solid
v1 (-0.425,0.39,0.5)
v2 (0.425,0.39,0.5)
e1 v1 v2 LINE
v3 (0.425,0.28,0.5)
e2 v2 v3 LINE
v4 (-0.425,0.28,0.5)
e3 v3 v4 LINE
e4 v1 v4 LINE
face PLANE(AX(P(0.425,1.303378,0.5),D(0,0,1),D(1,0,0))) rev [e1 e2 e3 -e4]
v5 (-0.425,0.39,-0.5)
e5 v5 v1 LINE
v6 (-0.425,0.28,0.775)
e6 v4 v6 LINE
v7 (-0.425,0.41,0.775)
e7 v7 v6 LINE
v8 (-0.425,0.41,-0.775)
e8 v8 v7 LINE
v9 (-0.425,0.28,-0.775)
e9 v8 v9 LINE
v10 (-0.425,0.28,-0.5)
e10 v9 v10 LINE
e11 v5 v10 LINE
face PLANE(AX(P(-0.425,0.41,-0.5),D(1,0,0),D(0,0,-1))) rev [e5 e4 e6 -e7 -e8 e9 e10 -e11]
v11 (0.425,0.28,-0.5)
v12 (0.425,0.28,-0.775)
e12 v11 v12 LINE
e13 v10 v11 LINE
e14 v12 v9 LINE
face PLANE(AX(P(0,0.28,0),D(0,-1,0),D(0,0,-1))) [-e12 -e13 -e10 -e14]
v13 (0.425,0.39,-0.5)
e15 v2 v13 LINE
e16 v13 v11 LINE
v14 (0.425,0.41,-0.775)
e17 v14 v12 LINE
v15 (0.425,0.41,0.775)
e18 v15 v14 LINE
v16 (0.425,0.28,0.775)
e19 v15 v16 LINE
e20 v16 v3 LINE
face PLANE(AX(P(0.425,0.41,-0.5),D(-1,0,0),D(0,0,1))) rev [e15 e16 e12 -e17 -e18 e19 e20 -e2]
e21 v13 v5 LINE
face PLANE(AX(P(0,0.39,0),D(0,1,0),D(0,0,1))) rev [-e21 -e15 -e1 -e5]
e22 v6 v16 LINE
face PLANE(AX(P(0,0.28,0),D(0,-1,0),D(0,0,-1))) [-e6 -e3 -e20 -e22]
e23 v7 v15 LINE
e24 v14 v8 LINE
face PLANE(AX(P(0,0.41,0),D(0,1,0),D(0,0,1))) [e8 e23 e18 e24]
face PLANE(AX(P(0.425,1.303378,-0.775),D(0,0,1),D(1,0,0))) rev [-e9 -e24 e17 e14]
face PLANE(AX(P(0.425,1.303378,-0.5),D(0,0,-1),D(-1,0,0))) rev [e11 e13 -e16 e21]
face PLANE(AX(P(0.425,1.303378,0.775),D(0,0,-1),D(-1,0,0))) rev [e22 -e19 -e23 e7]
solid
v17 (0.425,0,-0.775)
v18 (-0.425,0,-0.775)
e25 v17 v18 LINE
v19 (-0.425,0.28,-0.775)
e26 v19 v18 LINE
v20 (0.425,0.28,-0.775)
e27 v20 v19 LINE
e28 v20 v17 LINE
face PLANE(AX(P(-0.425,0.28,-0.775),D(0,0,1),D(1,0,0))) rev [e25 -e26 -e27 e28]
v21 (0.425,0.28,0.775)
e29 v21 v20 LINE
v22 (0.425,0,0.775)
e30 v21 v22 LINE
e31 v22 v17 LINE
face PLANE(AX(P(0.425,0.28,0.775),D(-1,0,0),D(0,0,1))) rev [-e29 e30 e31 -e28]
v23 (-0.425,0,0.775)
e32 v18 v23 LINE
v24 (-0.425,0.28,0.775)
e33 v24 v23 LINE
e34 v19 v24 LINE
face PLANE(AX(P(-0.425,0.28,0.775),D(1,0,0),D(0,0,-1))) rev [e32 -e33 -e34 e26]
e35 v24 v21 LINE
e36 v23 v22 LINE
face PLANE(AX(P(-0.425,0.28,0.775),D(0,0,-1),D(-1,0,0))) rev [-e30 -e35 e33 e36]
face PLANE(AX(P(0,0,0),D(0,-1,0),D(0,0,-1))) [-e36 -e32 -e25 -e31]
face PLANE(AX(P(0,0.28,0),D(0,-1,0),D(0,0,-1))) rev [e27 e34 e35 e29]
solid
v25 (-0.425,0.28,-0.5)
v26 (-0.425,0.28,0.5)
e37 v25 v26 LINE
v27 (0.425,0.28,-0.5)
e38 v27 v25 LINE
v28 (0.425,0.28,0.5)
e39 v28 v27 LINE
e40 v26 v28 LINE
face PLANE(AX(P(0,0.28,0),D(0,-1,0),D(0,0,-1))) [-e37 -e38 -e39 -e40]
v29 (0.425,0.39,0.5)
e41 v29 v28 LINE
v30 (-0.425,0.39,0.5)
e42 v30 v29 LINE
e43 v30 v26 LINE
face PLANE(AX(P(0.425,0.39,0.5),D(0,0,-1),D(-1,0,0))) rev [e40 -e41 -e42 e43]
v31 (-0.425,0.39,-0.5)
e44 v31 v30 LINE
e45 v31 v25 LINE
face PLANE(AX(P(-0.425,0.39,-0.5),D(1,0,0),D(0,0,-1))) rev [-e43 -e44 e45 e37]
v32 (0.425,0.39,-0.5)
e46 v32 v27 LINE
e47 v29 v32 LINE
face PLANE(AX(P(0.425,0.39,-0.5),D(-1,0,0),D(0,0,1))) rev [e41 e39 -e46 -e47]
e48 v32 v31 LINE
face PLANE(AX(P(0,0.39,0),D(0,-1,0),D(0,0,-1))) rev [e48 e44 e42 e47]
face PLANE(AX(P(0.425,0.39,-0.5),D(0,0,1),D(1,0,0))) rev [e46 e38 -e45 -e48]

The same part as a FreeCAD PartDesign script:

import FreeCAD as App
import Part
import Sketcher

doc = App.newDocument("Part")
body = doc.addObject("PartDesign::Body", "Body")

sketch1 = body.newObject("Sketcher::SketchObject", "Sketch")
sketch1.AttachmentSupport = (doc.getObject("XZ_Plane"), [""])
sketch1.MapMode = "FlatFace"
sketch1.addGeometry(Part.LineSegment(App.Vector(-0.4, -0.8, 0), App.Vector(-0.4, 0.8, 0)), False)
sketch1.addGeometry(Part.LineSegment(App.Vector(-0.4, 0.8, 0), App.Vector(0.4, 0.8, 0)), False)
sketch1.addGeometry(Part.LineSegment(App.Vector(0.4, 0.8, 0), App.Vector(0.4, -0.8, 0)), False)
sketch1.addGeometry(Part.LineSegment(App.Vector(0.4, -0.8, 0), App.Vector(-0.4, -0.8, 0)), False)
sketch1.addConstraint(Sketcher.Constraint("Coincident", 0, 2, 1, 1))
sketch1.addConstraint(Sketcher.Constraint("Coincident", 1, 2, 2, 1))
sketch1.addConstraint(Sketcher.Constraint("Coincident", 2, 2, 3, 1))
sketch1.addConstraint(Sketcher.Constraint("Coincident", 3, 2, 0, 1))
sketch1.addConstraint(Sketcher.Constraint("Vertical", 0))
sketch1.addConstraint(Sketcher.Constraint("Horizontal", 1))
sketch1.addConstraint(Sketcher.Constraint("Vertical", 2))
sketch1.addConstraint(Sketcher.Constraint("Horizontal", 3))
sketch1.addConstraint(Sketcher.Constraint("Symmetric", 0, 2, 2, 2, -1, 1))
sketch1.addConstraint(Sketcher.Constraint("DistanceX", 1, 1, 1, 2, 0.85))
sketch1.addConstraint(Sketcher.Constraint("DistanceY", 0, 1, 0, 2, 1.55))
pad1 = body.newObject("PartDesign::Pad", "Pad")
pad1.Profile = sketch1
pad1.Length = 0.28
pad1.Reversed = True
body2 = doc.addObject("PartDesign::Body", "Body001")

sketch2 = body2.newObject("Sketcher::SketchObject", "Sketch001")
sketch2.AttachmentSupport = (doc.getObject("XZ_Plane001"), [""])
sketch2.MapMode = "FlatFace"
sketch2.AttachmentOffset = App.Placement(App.Vector(0, 0, -0.28), App.Rotation())
sketch2.addGeometry(Part.LineSegment(App.Vector(-0.4, -0.5, 0), App.Vector(-0.4, 0.5, 0)), False)
sketch2.addGeometry(Part.LineSegment(App.Vector(-0.4, 0.5, 0), App.Vector(0.4, 0.5, 0)), False)
sketch2.addGeometry(Part.LineSegment(App.Vector(0.4, 0.5, 0), App.Vector(0.4, -0.5, 0)), False)
sketch2.addGeometry(Part.LineSegment(App.Vector(0.4, -0.5, 0), App.Vector(-0.4, -0.5, 0)), False)
sketch2.addConstraint(Sketcher.Constraint("Coincident", 0, 2, 1, 1))
sketch2.addConstraint(Sketcher.Constraint("Coincident", 1, 2, 2, 1))
sketch2.addConstraint(Sketcher.Constraint("Coincident", 2, 2, 3, 1))
sketch2.addConstraint(Sketcher.Constraint("Coincident", 3, 2, 0, 1))
sketch2.addConstraint(Sketcher.Constraint("Vertical", 0))
sketch2.addConstraint(Sketcher.Constraint("Horizontal", 1))
sketch2.addConstraint(Sketcher.Constraint("Vertical", 2))
sketch2.addConstraint(Sketcher.Constraint("Horizontal", 3))
sketch2.addConstraint(Sketcher.Constraint("Symmetric", 0, 2, 2, 2, -1, 1))
sketch2.addConstraint(Sketcher.Constraint("DistanceY", 0, 1, 0, 2, 1.0))
sketch2.addConstraint(Sketcher.Constraint("DistanceX", 1, 1, 1, 2, 0.85))
pad2 = body2.newObject("PartDesign::Pad", "Pad001")
pad2.Profile = sketch2
pad2.Length = 0.11
pad2.Reversed = True
body3 = doc.addObject("PartDesign::Body", "Body002")

sketch3 = body3.newObject("Sketcher::SketchObject", "Sketch002")
sketch3.AttachmentSupport = (doc.getObject("XZ_Plane002"), [""])
sketch3.MapMode = "FlatFace"
sketch3.AttachmentOffset = App.Placement(App.Vector(0, 0, -0.39), App.Rotation())
sketch3.addGeometry(Part.LineSegment(App.Vector(-0.4, -0.5, 0), App.Vector(-0.4, 0.5, 0)), False)
sketch3.addGeometry(Part.LineSegment(App.Vector(-0.4, 0.5, 0), App.Vector(0.4, 0.5, 0)), False)
sketch3.addGeometry(Part.LineSegment(App.Vector(0.4, 0.5, 0), App.Vector(0.4, -0.5, 0)), False)
sketch3.addGeometry(Part.LineSegment(App.Vector(0.4, -0.5, 0), App.Vector(-0.4, -0.5, 0)), False)
sketch3.addConstraint(Sketcher.Constraint("Coincident", 0, 2, 1, 1))
sketch3.addConstraint(Sketcher.Constraint("Coincident", 1, 2, 2, 1))
sketch3.addConstraint(Sketcher.Constraint("Coincident", 2, 2, 3, 1))
sketch3.addConstraint(Sketcher.Constraint("Coincident", 3, 2, 0, 1))
sketch3.addConstraint(Sketcher.Constraint("Vertical", 0))
sketch3.addConstraint(Sketcher.Constraint("Horizontal", 1))
sketch3.addConstraint(Sketcher.Constraint("Vertical", 2))
sketch3.addConstraint(Sketcher.Constraint("Horizontal", 3))
sketch3.addConstraint(Sketcher.Constraint("Symmetric", 0, 2, 2, 2, -1, 1))
sketch3.addConstraint(Sketcher.Constraint("DistanceY", 0, 1, 0, 2, 1.0))
sketch3.addConstraint(Sketcher.Constraint("DistanceX", 1, 1, 1, 2, 0.85))
pad3 = body3.newObject("PartDesign::Pad", "Pad002")
pad3.Profile = sketch3
pad3.Length = 0.02
pad3.Reversed = True

sketch4 = body3.newObject("Sketcher::SketchObject", "Sketch003")
sketch4.AttachmentSupport = (doc.getObject("XZ_Plane002"), [""])
sketch4.MapMode = "FlatFace"
sketch4.AttachmentOffset = App.Placement(App.Vector(0, 0, -0.28), App.Rotation())
sketch4.addGeometry(Part.LineSegment(App.Vector(-0.42, -0.78, 0), App.Vector(-0.42, -0.5, 0)), False)
sketch4.addGeometry(Part.LineSegment(App.Vector(-0.42, -0.5, 0), App.Vector(0.42, -0.5, 0)), False)
sketch4.addGeometry(Part.LineSegment(App.Vector(0.42, -0.5, 0), App.Vector(0.42, -0.78, 0)), False)
sketch4.addGeometry(Part.LineSegment(App.Vector(0.42, -0.78, 0), App.Vector(-0.42, -0.78, 0)), False)
sketch4.addGeometry(Part.LineSegment(App.Vector(-0.42, 0.5, 0), App.Vector(-0.42, 0.78, 0)), False)
sketch4.addGeometry(Part.LineSegment(App.Vector(-0.42, 0.78, 0), App.Vector(0.42, 0.78, 0)), False)
sketch4.addGeometry(Part.LineSegment(App.Vector(0.42, 0.78, 0), App.Vector(0.42, 0.5, 0)), False)
sketch4.addGeometry(Part.LineSegment(App.Vector(0.42, 0.5, 0), App.Vector(-0.42, 0.5, 0)), False)
sketch4.addConstraint(Sketcher.Constraint("Coincident", 0, 2, 1, 1))
sketch4.addConstraint(Sketcher.Constraint("Coincident", 1, 2, 2, 1))
sketch4.addConstraint(Sketcher.Constraint("Coincident", 2, 2, 3, 1))
sketch4.addConstraint(Sketcher.Constraint("Coincident", 3, 2, 0, 1))
sketch4.addConstraint(Sketcher.Constraint("Coincident", 4, 2, 5, 1))
sketch4.addConstraint(Sketcher.Constraint("Coincident", 5, 2, 6, 1))
sketch4.addConstraint(Sketcher.Constraint("Coincident", 6, 2, 7, 1))
sketch4.addConstraint(Sketcher.Constraint("Coincident", 7, 2, 4, 1))
sketch4.addConstraint(Sketcher.Constraint("Vertical", 0))
sketch4.addConstraint(Sketcher.Constraint("Horizontal", 1))
sketch4.addConstraint(Sketcher.Constraint("Vertical", 2))
sketch4.addConstraint(Sketcher.Constraint("Horizontal", 3))
sketch4.addConstraint(Sketcher.Constraint("Vertical", 4))
sketch4.addConstraint(Sketcher.Constraint("Horizontal", 5))
sketch4.addConstraint(Sketcher.Constraint("Vertical", 6))
sketch4.addConstraint(Sketcher.Constraint("Horizontal", 7))
sketch4.addConstraint(Sketcher.Constraint("Symmetric", 2, 2, 4, 2, -1, 1))
sketch4.addConstraint(Sketcher.Constraint("Symmetric", 0, 2, 6, 2, -1, 1))
sketch4.addConstraint(Sketcher.Constraint("Vertical", 3, 2, 4, 2))
sketch4.addConstraint(Sketcher.Constraint("DistanceY", 1, 2, 6, 2, 1.0))
sketch4.addConstraint(Sketcher.Constraint("DistanceX", 1, 1, 1, 2, 0.85))
sketch4.addConstraint(Sketcher.Constraint("DistanceY", 0, 1, 0, 2, 0.275))
pad4 = body3.newObject("PartDesign::Pad", "Pad003")
pad4.Profile = sketch4
pad4.Length = 0.13
pad4.Reversed = True

doc.recompute()
